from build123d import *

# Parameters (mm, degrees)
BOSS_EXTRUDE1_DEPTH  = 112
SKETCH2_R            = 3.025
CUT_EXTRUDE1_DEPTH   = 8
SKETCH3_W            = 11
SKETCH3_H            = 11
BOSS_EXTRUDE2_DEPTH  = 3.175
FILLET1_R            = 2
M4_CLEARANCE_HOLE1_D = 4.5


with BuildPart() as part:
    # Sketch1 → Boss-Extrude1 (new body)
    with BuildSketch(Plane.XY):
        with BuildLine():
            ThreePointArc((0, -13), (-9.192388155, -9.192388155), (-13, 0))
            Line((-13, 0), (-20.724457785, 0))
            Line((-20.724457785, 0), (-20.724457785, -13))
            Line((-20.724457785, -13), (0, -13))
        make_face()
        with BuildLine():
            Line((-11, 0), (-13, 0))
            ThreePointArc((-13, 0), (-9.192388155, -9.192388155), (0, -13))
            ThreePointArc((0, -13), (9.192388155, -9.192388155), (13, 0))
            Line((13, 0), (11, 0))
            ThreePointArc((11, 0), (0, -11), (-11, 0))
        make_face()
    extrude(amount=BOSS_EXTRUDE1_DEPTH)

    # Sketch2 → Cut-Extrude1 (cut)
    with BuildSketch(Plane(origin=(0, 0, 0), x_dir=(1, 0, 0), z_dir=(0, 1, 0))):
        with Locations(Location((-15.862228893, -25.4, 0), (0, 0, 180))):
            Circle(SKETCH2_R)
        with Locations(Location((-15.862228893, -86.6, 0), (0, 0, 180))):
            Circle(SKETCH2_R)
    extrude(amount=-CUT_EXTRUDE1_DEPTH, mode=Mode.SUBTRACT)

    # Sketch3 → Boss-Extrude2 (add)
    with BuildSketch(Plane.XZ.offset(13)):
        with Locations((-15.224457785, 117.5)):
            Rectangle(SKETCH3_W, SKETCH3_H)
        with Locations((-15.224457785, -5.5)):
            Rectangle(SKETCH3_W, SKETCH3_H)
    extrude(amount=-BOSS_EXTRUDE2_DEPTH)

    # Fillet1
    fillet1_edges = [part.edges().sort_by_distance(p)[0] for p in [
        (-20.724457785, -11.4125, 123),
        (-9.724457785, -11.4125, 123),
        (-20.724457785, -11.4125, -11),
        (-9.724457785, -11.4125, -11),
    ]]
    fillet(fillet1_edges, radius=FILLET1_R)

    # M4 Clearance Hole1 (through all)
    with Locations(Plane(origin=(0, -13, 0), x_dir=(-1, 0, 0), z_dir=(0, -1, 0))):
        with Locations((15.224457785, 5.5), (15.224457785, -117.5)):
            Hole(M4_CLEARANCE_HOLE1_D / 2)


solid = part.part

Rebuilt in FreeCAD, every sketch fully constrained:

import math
import FreeCAD as App
import Part
import Sketcher
from FreeCAD import Vector
Q = App.Units.Quantity


def edges_at(feature, points):
    """Names of the edges that pass closest to the given points."""
    edges = feature.Shape.Edges
    near = lambda p: min(range(len(edges)), key=lambda i: edges[i].distToShape(Part.Vertex(*p))[0])
    return sorted({f"Edge{near(p) + 1}" for p in points})

doc = App.newDocument("Part")
params = doc.addObject("Spreadsheet::Sheet", "Params")
for row, (alias, value) in enumerate([
    ("sketch1_radius", "13 mm"),
    ("sketch1_radius2", "11 mm"),
    ("pad1_length", "112 mm"),
    ("sketch2_diameter", "6.05 mm"),
    ("pocket1_length", "8 mm"),
    ("sketch3_width", "11 mm"),
    ("pad2_length", "3.175 mm"),
    ("fillet_radius", "2 mm"),
    ("sketch4_diameter", "4.5 mm"),
    ("hole_diameter", "4.5 mm"),
], start=1):
    params.set(f"A{row}", alias)
    params.set(f"B{row}", "=" + value)
    params.setAlias(f"B{row}", alias)

body = doc.addObject("PartDesign::Body", "Body")

# Sketch on XY plane
sketch1 = body.newObject("Sketcher::SketchObject", "Sketch")
sketch1.AttachmentSupport = (doc.getObject("XY_Plane"), [""])
sketch1.MapMode = "FlatFace"
sketch1.addGeometry([
    Part.LineSegment(Vector(-20.7, 0, 0), Vector(-20.7, -13, 0)),  # 0
    Part.LineSegment(Vector(-20.7, -13, 0), Vector(0, -13, 0)),  # 1
    Part.ArcOfCircle(Part.Circle(Vector(0, 0, 0), Vector(0, 0, 1), 13), math.radians(-90), math.radians(0)),  # 2
    Part.LineSegment(Vector(13, 0, 0), Vector(11, 0, 0)),  # 3
    Part.ArcOfCircle(Part.Circle(Vector(0, 0, 0), Vector(0, 0, 1), 11), math.radians(180), math.radians(360)),  # 4
    Part.LineSegment(Vector(-11, 0, 0), Vector(-20.7, 0, 0)),  # 5
], False)
sketch1.addConstraint([
    Sketcher.Constraint("Coincident", 0, 2, 1, 1),
    Sketcher.Constraint("Tangent", 1, 2, 2, 1),
    Sketcher.Constraint("Coincident", 2, 2, 3, 1),
    Sketcher.Constraint("Coincident", 3, 2, 4, 2),
    Sketcher.Constraint("Coincident", 4, 1, 5, 1),
    Sketcher.Constraint("Coincident", 5, 2, 0, 1),
    Sketcher.Constraint("Vertical", 0),
    Sketcher.Constraint("Horizontal", 1),
    Sketcher.Constraint("Horizontal", 3),
    Sketcher.Constraint("Horizontal", 5),
    Sketcher.Constraint("Coincident", 2, 3, -1, 1),
    Sketcher.Constraint("Coincident", 4, 3, -1, 1),
    Sketcher.Constraint("PointOnObject", 2, 2, -1),
    Sketcher.Constraint("PointOnObject", 4, 1, -1),
    Sketcher.Constraint("Radius", 2, Q("13 mm")),
    Sketcher.Constraint("Radius", 4, Q("11 mm")),
    Sketcher.Constraint("DistanceX", 1, 1, 1, 2, Q("20.724458 mm")),
])
sketch1.setExpression("Constraints[14]", "Params.sketch1_radius")
sketch1.setExpression("Constraints[15]", "Params.sketch1_radius2")
pad1 = body.newObject("PartDesign::Pad", "Pad")
pad1.Profile = sketch1
pad1.setExpression("Length", "Params.pad1_length")

# Sketch on XZ plane
sketch2 = body.newObject("Sketcher::SketchObject", "Sketch001")
sketch2.AttachmentSupport = (doc.getObject("XZ_Plane"), [""])
sketch2.MapMode = "FlatFace"
sketch2.addGeometry([
    Part.Circle(Vector(-15.9, 25.4, 0), Vector(0, 0, 1), 3),
    Part.Circle(Vector(-15.9, 86.6, 0), Vector(0, 0, 1), 3),
], False)
sketch2.addConstraint([
    Sketcher.Constraint("Equal", 0, 1),
    Sketcher.Constraint("Vertical", 0, 3, 1, 3),
    Sketcher.Constraint("Diameter", 0, Q("6.05 mm")),
    Sketcher.Constraint("DistanceY", -1, 1, 0, 3, Q("25.4 mm")),
    Sketcher.Constraint("DistanceY", -1, 1, 1, 3, Q("86.6 mm")),
    Sketcher.Constraint("DistanceX", 0, 3, -1, 1, Q("15.862229 mm")),
])
sketch2.setExpression("Constraints[2]", "Params.sketch2_diameter")
pocket1 = body.newObject("PartDesign::Pocket", "Pocket")
pocket1.Profile = sketch2
pocket1.setExpression("Length", "Params.pocket1_length")
pocket1.Reversed = True

# Sketch on XZ plane
sketch3 = body.newObject("Sketcher::SketchObject", "Sketch002")
sketch3.AttachmentSupport = (doc.getObject("XZ_Plane"), [""])
sketch3.MapMode = "FlatFace"
sketch3.AttachmentOffset = App.Placement(Vector(0, 0, 13), App.Rotation())
sketch3.addGeometry([
    Part.LineSegment(Vector(-21, 123, 0), Vector(-21, 112, 0)),  # 0
    Part.LineSegment(Vector(-21, 112, 0), Vector(-10, 112, 0)),  # 1
    Part.LineSegment(Vector(-10, 112, 0), Vector(-10, 123, 0)),  # 2
    Part.LineSegment(Vector(-10, 123, 0), Vector(-21, 123, 0)),  # 3
    Part.LineSegment(Vector(-21, 0, 0), Vector(-21, -11, 0)),  # 4
    Part.LineSegment(Vector(-21, -11, 0), Vector(-10, -11, 0)),  # 5
    Part.LineSegment(Vector(-10, -11, 0), Vector(-10, 0, 0)),  # 6
    Part.LineSegment(Vector(-10, 0, 0), Vector(-21, 0, 0)),  # 7
], False)
sketch3.addConstraint([
    Sketcher.Constraint("Coincident", 0, 2, 1, 1),
    Sketcher.Constraint("Coincident", 1, 2, 2, 1),
    Sketcher.Constraint("Coincident", 2, 2, 3, 1),
    Sketcher.Constraint("Coincident", 3, 2, 0, 1),
    Sketcher.Constraint("Coincident", 4, 2, 5, 1),
    Sketcher.Constraint("Coincident", 5, 2, 6, 1),
    Sketcher.Constraint("Coincident", 6, 2, 7, 1),
    Sketcher.Constraint("Coincident", 7, 2, 4, 1),
    Sketcher.Constraint("Vertical", 0),
    Sketcher.Constraint("Horizontal", 1),
    Sketcher.Constraint("Vertical", 2),
    Sketcher.Constraint("Horizontal", 3),
    Sketcher.Constraint("Vertical", 4),
    Sketcher.Constraint("Horizontal", 5),
    Sketcher.Constraint("Vertical", 6),
    Sketcher.Constraint("Horizontal", 7),
    Sketcher.Constraint("PointOnObject", 6, 2, -1),
    Sketcher.Constraint("Vertical", 3, 2, 4, 2),
    Sketcher.Constraint("Vertical", 2, 2, 5, 2),
    Sketcher.Constraint("Equal", 7, 0),
    Sketcher.Constraint("Equal", 2, 4),
    Sketcher.Constraint("DistanceX", 1, 1, 1, 2, Q("11 mm")),
    Sketcher.Constraint("DistanceY", -1, 1, 0, 2, Q("112 mm")),
    Sketcher.Constraint("DistanceX", 0, 2, -1, 1, Q("20.724458 mm")),
])
sketch3.setExpression("Constraints[21]", "Params.sketch3_width")
pad2 = body.newObject("PartDesign::Pad", "Pad001")
pad2.Profile = sketch3
pad2.setExpression("Length", "Params.pad2_length")
pad2.Reversed = True
doc.recompute()

fillet = body.newObject("PartDesign::Fillet", "Fillet")
fillet.Base = (pad2, edges_at(pad2, [
    (-20.724, -11.412, 123),
    (-9.724, -11.412, 123),
    (-20.724, -11.412, -11),
    (-9.724, -11.412, -11),
]))
fillet.setExpression("Radius", "Params.fillet_radius")

# Sketch on XZ plane
sketch4 = body.newObject("Sketcher::SketchObject", "Sketch003")
sketch4.AttachmentSupport = (doc.getObject("XZ_Plane"), [""])
sketch4.MapMode = "FlatFace"
sketch4.AttachmentOffset = App.Placement(Vector(0, 0, 13), App.Rotation())
sketch4.addGeometry([
    Part.Circle(Vector(-15.2, -5.5, 0), Vector(0, 0, 1), 2.2),
    Part.Circle(Vector(-15.2, 117.5, 0), Vector(0, 0, 1), 2.2),
], False)
sketch4.addConstraint([
    Sketcher.Constraint("Equal", 0, 1),
    Sketcher.Constraint("Vertical", 0, 3, 1, 3),
    Sketcher.Constraint("Diameter", 0, Q("4.5 mm")),
    Sketcher.Constraint("DistanceY", 0, 3, 1, 3, Q("123 mm")),
    Sketcher.Constraint("DistanceY", 0, 3, -1, 1, Q("5.5 mm")),
    Sketcher.Constraint("DistanceX", 0, 3, -1, 1, Q("15.224458 mm")),
])
sketch4.setExpression("Constraints[2]", "Params.sketch4_diameter")
doc.recompute()
hole = body.newObject("PartDesign::Hole", "Hole")
hole.Profile = sketch4
hole.ThreadType = "None"
hole.setExpression("Diameter", "Params.hole_diameter")
hole.DepthType = "ThroughAll"

doc.recompute()
